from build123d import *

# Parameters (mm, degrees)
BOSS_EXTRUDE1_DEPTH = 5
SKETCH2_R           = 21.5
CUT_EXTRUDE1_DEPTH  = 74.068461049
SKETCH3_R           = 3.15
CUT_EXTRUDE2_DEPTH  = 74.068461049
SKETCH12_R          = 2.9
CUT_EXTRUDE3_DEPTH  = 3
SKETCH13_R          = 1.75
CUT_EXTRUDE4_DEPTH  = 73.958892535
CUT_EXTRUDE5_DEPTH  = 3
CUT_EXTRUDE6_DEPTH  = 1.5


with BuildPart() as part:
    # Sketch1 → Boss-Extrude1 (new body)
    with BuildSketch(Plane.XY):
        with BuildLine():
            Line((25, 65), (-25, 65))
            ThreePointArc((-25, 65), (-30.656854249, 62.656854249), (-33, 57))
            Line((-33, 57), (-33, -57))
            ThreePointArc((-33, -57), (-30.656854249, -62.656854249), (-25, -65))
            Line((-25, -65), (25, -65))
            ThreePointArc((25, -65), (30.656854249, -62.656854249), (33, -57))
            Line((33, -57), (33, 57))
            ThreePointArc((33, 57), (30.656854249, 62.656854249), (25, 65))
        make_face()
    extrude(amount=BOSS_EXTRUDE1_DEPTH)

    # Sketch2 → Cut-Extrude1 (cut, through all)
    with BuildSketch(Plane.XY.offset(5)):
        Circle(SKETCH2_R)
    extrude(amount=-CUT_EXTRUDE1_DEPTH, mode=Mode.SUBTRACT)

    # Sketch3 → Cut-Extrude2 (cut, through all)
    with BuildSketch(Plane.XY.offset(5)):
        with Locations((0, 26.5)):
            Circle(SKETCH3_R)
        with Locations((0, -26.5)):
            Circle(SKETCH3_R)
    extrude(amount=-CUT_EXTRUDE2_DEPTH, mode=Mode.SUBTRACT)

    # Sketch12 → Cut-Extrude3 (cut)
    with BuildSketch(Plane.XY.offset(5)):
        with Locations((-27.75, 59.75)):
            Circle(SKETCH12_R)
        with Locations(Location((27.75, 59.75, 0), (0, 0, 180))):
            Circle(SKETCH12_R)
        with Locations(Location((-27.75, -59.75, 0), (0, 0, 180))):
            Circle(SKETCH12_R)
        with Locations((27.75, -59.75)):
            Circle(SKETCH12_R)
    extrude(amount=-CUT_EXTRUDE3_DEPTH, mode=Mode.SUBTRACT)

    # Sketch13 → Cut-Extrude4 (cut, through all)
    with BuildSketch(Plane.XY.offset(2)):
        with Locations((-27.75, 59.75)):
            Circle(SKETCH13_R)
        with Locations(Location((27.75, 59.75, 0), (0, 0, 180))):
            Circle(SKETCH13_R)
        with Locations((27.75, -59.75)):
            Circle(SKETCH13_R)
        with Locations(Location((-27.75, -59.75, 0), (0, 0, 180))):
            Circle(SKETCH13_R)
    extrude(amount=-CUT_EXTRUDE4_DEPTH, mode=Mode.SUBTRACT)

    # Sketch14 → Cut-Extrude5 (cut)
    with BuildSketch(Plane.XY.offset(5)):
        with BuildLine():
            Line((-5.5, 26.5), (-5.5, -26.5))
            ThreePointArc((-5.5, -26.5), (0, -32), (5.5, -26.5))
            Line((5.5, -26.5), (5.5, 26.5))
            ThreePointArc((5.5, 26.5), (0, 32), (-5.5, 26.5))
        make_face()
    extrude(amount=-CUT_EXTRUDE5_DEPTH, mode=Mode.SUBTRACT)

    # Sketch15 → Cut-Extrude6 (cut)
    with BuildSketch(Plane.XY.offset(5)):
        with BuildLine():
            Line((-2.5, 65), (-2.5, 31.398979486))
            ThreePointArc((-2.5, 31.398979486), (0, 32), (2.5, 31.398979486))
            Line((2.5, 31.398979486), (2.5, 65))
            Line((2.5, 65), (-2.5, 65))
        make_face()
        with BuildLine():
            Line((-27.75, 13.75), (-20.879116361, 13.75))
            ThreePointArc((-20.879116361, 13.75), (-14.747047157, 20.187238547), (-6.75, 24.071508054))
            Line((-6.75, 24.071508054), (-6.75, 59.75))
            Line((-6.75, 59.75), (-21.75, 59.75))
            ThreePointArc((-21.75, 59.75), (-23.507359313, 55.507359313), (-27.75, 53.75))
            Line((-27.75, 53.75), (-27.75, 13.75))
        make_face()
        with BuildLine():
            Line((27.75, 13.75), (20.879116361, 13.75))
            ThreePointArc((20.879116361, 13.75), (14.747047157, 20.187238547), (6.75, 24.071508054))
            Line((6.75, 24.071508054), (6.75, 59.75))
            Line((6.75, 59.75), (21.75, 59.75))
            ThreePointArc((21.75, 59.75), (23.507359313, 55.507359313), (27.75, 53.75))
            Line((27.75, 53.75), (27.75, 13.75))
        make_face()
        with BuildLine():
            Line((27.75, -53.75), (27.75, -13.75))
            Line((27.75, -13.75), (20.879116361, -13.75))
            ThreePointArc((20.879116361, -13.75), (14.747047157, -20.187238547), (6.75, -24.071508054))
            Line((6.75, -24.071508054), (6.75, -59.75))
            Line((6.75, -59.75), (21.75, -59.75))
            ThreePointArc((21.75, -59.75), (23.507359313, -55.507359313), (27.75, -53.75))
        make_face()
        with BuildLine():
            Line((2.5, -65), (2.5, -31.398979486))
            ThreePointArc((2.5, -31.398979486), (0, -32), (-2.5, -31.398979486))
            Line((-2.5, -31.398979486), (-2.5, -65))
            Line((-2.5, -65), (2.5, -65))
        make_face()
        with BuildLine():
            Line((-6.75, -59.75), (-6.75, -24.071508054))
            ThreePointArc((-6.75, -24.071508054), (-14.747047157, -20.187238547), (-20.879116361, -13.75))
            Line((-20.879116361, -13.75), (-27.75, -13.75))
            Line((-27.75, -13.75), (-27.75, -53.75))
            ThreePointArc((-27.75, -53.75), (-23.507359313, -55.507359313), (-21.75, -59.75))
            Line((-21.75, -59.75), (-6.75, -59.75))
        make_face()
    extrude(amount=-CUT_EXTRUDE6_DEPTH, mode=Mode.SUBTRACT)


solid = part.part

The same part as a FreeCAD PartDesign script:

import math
import FreeCAD as App
import Part
import Sketcher
from FreeCAD import Vector

doc = App.newDocument("Part")
body = doc.addObject("PartDesign::Body", "Body")

# Sketch on XY plane
sketch1 = body.newObject("Sketcher::SketchObject", "Sketch")
sketch1.AttachmentSupport = (doc.getObject("XY_Plane"), [""])
sketch1.MapMode = "FlatFace"
sketch1.addGeometry([
    Part.LineSegment(Vector(25, 65, 0), Vector(-25, 65, 0)),  # 0
    Part.ArcOfCircle(Part.Circle(Vector(-25, 57, 0), Vector(0, 0, 1), 8), math.radians(90), math.radians(180)),  # 1
    Part.LineSegment(Vector(-33, 57, 0), Vector(-33, -57, 0)),  # 2
    Part.ArcOfCircle(Part.Circle(Vector(-25, -57, 0), Vector(0, 0, 1), 8), math.radians(-180), math.radians(-90)),  # 3
    Part.LineSegment(Vector(-25, -65, 0), Vector(25, -65, 0)),  # 4
    Part.ArcOfCircle(Part.Circle(Vector(25, -57, 0), Vector(0, 0, 1), 8), math.radians(-90), math.radians(0)),  # 5
    Part.LineSegment(Vector(33, -57, 0), Vector(33, 57, 0)),  # 6
    Part.ArcOfCircle(Part.Circle(Vector(25, 57, 0), Vector(0, 0, 1), 8), math.radians(0), math.radians(90)),  # 7
], False)
sketch1.addConstraint([
    Sketcher.Constraint("Tangent", 0, 2, 1, 1),
    Sketcher.Constraint("Tangent", 1, 2, 2, 1),
    Sketcher.Constraint("Tangent", 2, 2, 3, 1),
    Sketcher.Constraint("Tangent", 3, 2, 4, 1),
    Sketcher.Constraint("Tangent", 4, 2, 5, 1),
    Sketcher.Constraint("Tangent", 5, 2, 6, 1),
    Sketcher.Constraint("Tangent", 6, 2, 7, 1),
    Sketcher.Constraint("Tangent", 7, 2, 0, 1),
    Sketcher.Constraint("Horizontal", 0),
    Sketcher.Constraint("Vertical", 2),
    Sketcher.Constraint("Horizontal", 4),
    Sketcher.Constraint("Vertical", 6),
    Sketcher.Constraint("Equal", 1, 3),
    Sketcher.Constraint("Equal", 3, 5),
    Sketcher.Constraint("Equal", 5, 7),
    Sketcher.Constraint("Symmetric", 1, 3, 5, 3, -1, 1),
    Sketcher.Constraint("Radius", 1, 8.0),
    Sketcher.Constraint("DistanceX", 0, 2, 0, 1, 50.0),
    Sketcher.Constraint("DistanceY", 2, 2, 2, 1, 114.0),
])
pad1 = body.newObject("PartDesign::Pad", "Pad")
pad1.Profile = sketch1
pad1.Length = 5

# Sketch on XY plane
sketch2 = body.newObject("Sketcher::SketchObject", "Sketch001")
sketch2.AttachmentSupport = (doc.getObject("XY_Plane"), [""])
sketch2.MapMode = "FlatFace"
sketch2.AttachmentOffset = App.Placement(Vector(0, 0, 5), App.Rotation())
sketch2.addGeometry(Part.Circle(Vector(0, 0, 0), Vector(0, 0, 1), 22), False)
sketch2.addConstraint([
    Sketcher.Constraint("Coincident", 0, 3, -1, 1),
    Sketcher.Constraint("Diameter", 0, 43.0),
])
pocket1 = body.newObject("PartDesign::Pocket", "Pocket")
pocket1.Profile = sketch2
pocket1.Type = "ThroughAll"

# Sketch on XY plane
sketch3 = body.newObject("Sketcher::SketchObject", "Sketch002")
sketch3.AttachmentSupport = (doc.getObject("XY_Plane"), [""])
sketch3.MapMode = "FlatFace"
sketch3.AttachmentOffset = App.Placement(Vector(0, 0, 5), App.Rotation())
sketch3.addGeometry([
    Part.Circle(Vector(0, 26.5, 0), Vector(0, 0, 1), 3.1),
    Part.Circle(Vector(0, -26.5, 0), Vector(0, 0, 1), 3.1),
], False)
sketch3.addConstraint([
    Sketcher.Constraint("Equal", 0, 1),
    Sketcher.Constraint("Symmetric", 0, 3, 1, 3, -1, 1),
    Sketcher.Constraint("PointOnObject", 0, 3, -2),
    Sketcher.Constraint("Diameter", 0, 6.3),
    Sketcher.Constraint("DistanceY", 1, 3, 0, 3, 53.0),
])
pocket2 = body.newObject("PartDesign::Pocket", "Pocket001")
pocket2.Profile = sketch3
pocket2.Type = "ThroughAll"

# Sketch on XY plane
sketch4 = body.newObject("Sketcher::SketchObject", "Sketch003")
sketch4.AttachmentSupport = (doc.getObject("XY_Plane"), [""])
sketch4.MapMode = "FlatFace"
sketch4.AttachmentOffset = App.Placement(Vector(0, 0, 5), App.Rotation())
sketch4.addGeometry([
    Part.Circle(Vector(-27.8, 59.8, 0), Vector(0, 0, 1), 2.9),
    Part.Circle(Vector(27.8, 59.8, 0), Vector(0, 0, 1), 2.9),
    Part.Circle(Vector(-27.8, -59.8, 0), Vector(0, 0, 1), 2.9),
    Part.Circle(Vector(27.8, -59.8, 0), Vector(0, 0, 1), 2.9),
], False)
sketch4.addConstraint([
    Sketcher.Constraint("Equal", 0, 1),
    Sketcher.Constraint("Equal", 1, 2),
    Sketcher.Constraint("Equal", 2, 3),
    Sketcher.Constraint("Symmetric", 1, 3, 2, 3, -1, 1),
    Sketcher.Constraint("Symmetric", 0, 3, 3, 3, -1, 1),
    Sketcher.Constraint("Symmetric", 0, 3, 1, 3, -2),
    Sketcher.Constraint("Diameter", 0, 5.8),
    Sketcher.Constraint("DistanceX", 0, 3, 1, 3, 55.5),
    Sketcher.Constraint("DistanceY", 2, 3, 0, 3, 119.5),
])
pocket3 = body.newObject("PartDesign::Pocket", "Pocket002")
pocket3.Profile = sketch4
pocket3.Length = 3

# Sketch on XY plane
sketch5 = body.newObject("Sketcher::SketchObject", "Sketch004")
sketch5.AttachmentSupport = (doc.getObject("XY_Plane"), [""])
sketch5.MapMode = "FlatFace"
sketch5.AttachmentOffset = App.Placement(Vector(0, 0, 2), App.Rotation())
sketch5.addGeometry([
    Part.Circle(Vector(-27.8, 59.8, 0), Vector(0, 0, 1), 1.8),
    Part.Circle(Vector(27.8, 59.8, 0), Vector(0, 0, 1), 1.8),
    Part.Circle(Vector(27.8, -59.8, 0), Vector(0, 0, 1), 1.8),
    Part.Circle(Vector(-27.8, -59.8, 0), Vector(0, 0, 1), 1.8),
], False)
sketch5.addConstraint([
    Sketcher.Constraint("Equal", 0, 1),
    Sketcher.Constraint("Equal", 1, 2),
    Sketcher.Constraint("Equal", 2, 3),
    Sketcher.Constraint("Symmetric", 0, 3, 2, 3, -1, 1),
    Sketcher.Constraint("Symmetric", 1, 3, 3, 3, -1, 1),
    Sketcher.Constraint("Symmetric", 0, 3, 1, 3, -2),
    Sketcher.Constraint("Diameter", 0, 3.5),
    Sketcher.Constraint("DistanceX", 0, 3, 1, 3, 55.5),
    Sketcher.Constraint("DistanceY", 2, 3, 1, 3, 119.5),
])
pocket4 = body.newObject("PartDesign::Pocket", "Pocket003")
pocket4.Profile = sketch5
pocket4.Type = "ThroughAll"

# Sketch on XY plane
sketch6 = body.newObject("Sketcher::SketchObject", "Sketch005")
sketch6.AttachmentSupport = (doc.getObject("XY_Plane"), [""])
sketch6.MapMode = "FlatFace"
sketch6.AttachmentOffset = App.Placement(Vector(0, 0, 5), App.Rotation())
sketch6.addGeometry([
    Part.LineSegment(Vector(-6, 26, 0), Vector(-6, -26, 0)),
    Part.ArcOfCircle(Part.Circle(Vector(0, -26, 0), Vector(0, 0, 1), 6), math.radians(180), math.radians(360)),
    Part.LineSegment(Vector(6, -26, 0), Vector(6, 26, 0)),
    Part.ArcOfCircle(Part.Circle(Vector(0, 26, 0), Vector(0, 0, 1), 6), math.radians(0), math.radians(180)),
], False)
sketch6.addConstraint([
    Sketcher.Constraint("Tangent", 0, 2, 1, 1),
    Sketcher.Constraint("Tangent", 1, 2, 2, 1),
    Sketcher.Constraint("Tangent", 2, 2, 3, 1),
    Sketcher.Constraint("Tangent", 3, 2, 0, 1),
    Sketcher.Constraint("Vertical", 0),
    Sketcher.Constraint("Vertical", 2),
    Sketcher.Constraint("Symmetric", 1, 3, 3, 3, -1, 1),
    Sketcher.Constraint("Radius", 1, 5.5),
    Sketcher.Constraint("DistanceY", 0, 2, 0, 1, 53.0),
])
pocket5 = body.newObject("PartDesign::Pocket", "Pocket004")
pocket5.Profile = sketch6
pocket5.Length = 3

# Sketch on XY plane
sketch7 = body.newObject("Sketcher::SketchObject", "Sketch006")
sketch7.AttachmentSupport = (doc.getObject("XY_Plane"), [""])
sketch7.MapMode = "FlatFace"
sketch7.AttachmentOffset = App.Placement(Vector(0, 0, 5), App.Rotation())
sketch7.addGeometry([
    Part.LineSegment(Vector(-2, 65, 0), Vector(-2, 31, 0)),  # 0
    Part.ArcOfCircle(Part.Circle(Vector(0, 26, 0), Vector(0, 0, 1), 6), math.radians(63), math.radians(117)),  # 1
    Part.LineSegment(Vector(2, 31, 0), Vector(2, 65, 0)),  # 2
    Part.LineSegment(Vector(2, 65, 0), Vector(-2, 65, 0)),  # 3
    Part.LineSegment(Vector(-28, 14, 0), Vector(-21, 14, 0)),  # 4
    Part.ArcOfCircle(Part.Circle(Vector(0, 0, 0), Vector(0, 0, 1), 25), math.radians(106), math.radians(147)),  # 5
    Part.LineSegment(Vector(-7, 24, 0), Vector(-7, 60, 0)),  # 6
    Part.LineSegment(Vector(-7, 60, 0), Vector(-22, 60, 0)),  # 7
    Part.ArcOfCircle(Part.Circle(Vector(-28, 60, 0), Vector(0, 0, 1), 6), math.radians(-90), math.radians(0)),  # 8
    Part.LineSegment(Vector(-28, 54, 0), Vector(-28, 14, 0)),  # 9
    Part.LineSegment(Vector(21, 14, 0), Vector(28, 14, 0)),  # 10
    Part.LineSegment(Vector(28, 14, 0), Vector(28, 54, 0)),  # 11
    Part.ArcOfCircle(Part.Circle(Vector(28, 60, 0), Vector(0, 0, 1), 6), math.radians(180), math.radians(270)),  # 12
    Part.LineSegment(Vector(22, 60, 0), Vector(7, 60, 0)),  # 13
    Part.LineSegment(Vector(7, 60, 0), Vector(7, 24, 0)),  # 14
    Part.ArcOfCircle(Part.Circle(Vector(0, 0, 0), Vector(0, 0, 1), 25), math.radians(33), math.radians(74)),  # 15
    Part.LineSegment(Vector(28, -54, 0), Vector(28, -14, 0)),  # 16
    Part.LineSegment(Vector(28, -14, 0), Vector(21, -14, 0)),  # 17
    Part.ArcOfCircle(Part.Circle(Vector(0, 0, 0), Vector(0, 0, 1), 25), math.radians(-74), math.radians(-33)),  # 18
    Part.LineSegment(Vector(7, -24, 0), Vector(7, -60, 0)),  # 19
    Part.LineSegment(Vector(7, -60, 0), Vector(22, -60, 0)),  # 20
    Part.ArcOfCircle(Part.Circle(Vector(28, -60, 0), Vector(0, 0, 1), 6), math.radians(90), math.radians(180)),  # 21
    Part.LineSegment(Vector(2, -65, 0), Vector(2, -31, 0)),  # 22
    Part.ArcOfCircle(Part.Circle(Vector(0, -26, 0), Vector(0, 0, 1), 6), math.radians(-117), math.radians(-63)),  # 23
    Part.LineSegment(Vector(-2, -31, 0), Vector(-2, -65, 0)),  # 24
    Part.LineSegment(Vector(-2, -65, 0), Vector(2, -65, 0)),  # 25
    Part.LineSegment(Vector(-7, -60, 0), Vector(-7, -24, 0)),  # 26
    Part.ArcOfCircle(Part.Circle(Vector(0, 0, 0), Vector(0, 0, 1), 25), math.radians(-147), math.radians(-106)),  # 27
    Part.LineSegment(Vector(-21, -14, 0), Vector(-28, -14, 0)),  # 28
    Part.LineSegment(Vector(-28, -14, 0), Vector(-28, -54, 0)),  # 29
    Part.ArcOfCircle(Part.Circle(Vector(-28, -60, 0), Vector(0, 0, 1), 6), math.radians(0), math.radians(90)),  # 30
    Part.LineSegment(Vector(-22, -60, 0), Vector(-7, -60, 0)),  # 31
], False)
sketch7.addConstraint([
    Sketcher.Constraint("Coincident", 0, 2, 1, 2),
    Sketcher.Constraint("Coincident", 1, 1, 2, 1),
    Sketcher.Constraint("Coincident", 2, 2, 3, 1),
    Sketcher.Constraint("Coincident", 3, 2, 0, 1),
    Sketcher.Constraint("Coincident", 4, 2, 5, 2),
    Sketcher.Constraint("Coincident", 5, 1, 6, 1),
    Sketcher.Constraint("Coincident", 6, 2, 7, 1),
    Sketcher.Constraint("Coincident", 7, 2, 8, 2),
    Sketcher.Constraint("Coincident", 8, 1, 9, 1),
    Sketcher.Constraint("Coincident", 9, 2, 4, 1),
    Sketcher.Constraint("Coincident", 10, 2, 11, 1),
    Sketcher.Constraint("Coincident", 11, 2, 12, 2),
    Sketcher.Constraint("Coincident", 12, 1, 13, 1),
    Sketcher.Constraint("Coincident", 13, 2, 14, 1),
    Sketcher.Constraint("Coincident", 14, 2, 15, 2),
    Sketcher.Constraint("Coincident", 15, 1, 10, 1),
    Sketcher.Constraint("Coincident", 16, 2, 17, 1),
    Sketcher.Constraint("Coincident", 17, 2, 18, 2),
    Sketcher.Constraint("Coincident", 18, 1, 19, 1),
    Sketcher.Constraint("Coincident", 19, 2, 20, 1),
    Sketcher.Constraint("Coincident", 20, 2, 21, 2),
    Sketcher.Constraint("Coincident", 21, 1, 16, 1),
    Sketcher.Constraint("Coincident", 22, 2, 23, 2),
    Sketcher.Constraint("Coincident", 23, 1, 24, 1),
    Sketcher.Constraint("Coincident", 24, 2, 25, 1),
    Sketcher.Constraint("Coincident", 25, 2, 22, 1),
    Sketcher.Constraint("Coincident", 26, 2, 27, 2),
    Sketcher.Constraint("Coincident", 27, 1, 28, 1),
    Sketcher.Constraint("Coincident", 28, 2, 29, 1),
    Sketcher.Constraint("Coincident", 29, 2, 30, 2),
    Sketcher.Constraint("Coincident", 30, 1, 31, 1),
    Sketcher.Constraint("Coincident", 31, 2, 26, 1),
    Sketcher.Constraint("Vertical", 0),
    Sketcher.Constraint("Vertical", 2),
    Sketcher.Constraint("Horizontal", 3),
    Sketcher.Constraint("Horizontal", 4),
    Sketcher.Constraint("Vertical", 6),
    Sketcher.Constraint("Horizontal", 7),
    Sketcher.Constraint("Vertical", 9),
    Sketcher.Constraint("Horizontal", 10),
    Sketcher.Constraint("Vertical", 11),
    Sketcher.Constraint("Horizontal", 13),
    Sketcher.Constraint("Vertical", 14),
    Sketcher.Constraint("Vertical", 16),
    Sketcher.Constraint("Horizontal", 17),
    Sketcher.Constraint("Vertical", 19),
    Sketcher.Constraint("Horizontal", 20),
    Sketcher.Constraint("Vertical", 22),
    Sketcher.Constraint("Vertical", 24),
    Sketcher.Constraint("Horizontal", 25),
    Sketcher.Constraint("Vertical", 26),
    Sketcher.Constraint("Horizontal", 28),
    Sketcher.Constraint("Vertical", 29),
    Sketcher.Constraint("Horizontal", 31),
    Sketcher.Constraint("Coincident", 5, 3, -1, 1),
    Sketcher.Constraint("Coincident", 15, 3, -1, 1),
    Sketcher.Constraint("Coincident", 18, 3, -1, 1),
    Sketcher.Constraint("Coincident", 27, 3, -1, 1),
    Sketcher.Constraint("Equal", 8, 12),
    Sketcher.Constraint("Equal", 5, 15),
    Sketcher.Constraint("Equal", 15, 18),
    Sketcher.Constraint("Equal", 12, 21),
    Sketcher.Constraint("Equal", 1, 23),
    Sketcher.Constraint("Equal", 18, 27),
    Sketcher.Constraint("Equal", 21, 30),
    Sketcher.Constraint("Symmetric", 8, 3, 21, 3, -1, 1),
    Sketcher.Constraint("Symmetric", 1, 3, 23, 3, -1, 1),
    Sketcher.Constraint("Symmetric", 12, 3, 30, 3, -1, 1),
    Sketcher.Constraint("Symmetric", 9, 2, 16, 2, -1, 1),
    Sketcher.Constraint("Symmetric", 6, 2, 19, 2, -1, 1),
    Sketcher.Constraint("Symmetric", 2, 2, 24, 2, -1, 1),
    Sketcher.Constraint("Symmetric", 10, 2, 28, 2, -1, 1),
    Sketcher.Constraint("Symmetric", 13, 2, 31, 2, -1, 1),
    Sketcher.Constraint("Symmetric", 8, 3, 12, 3, -2),
    Sketcher.Constraint("Symmetric", 0, 2, 1, 1, -2),
    Sketcher.Constraint("Symmetric", 9, 2, 10, 2, -2),
    Sketcher.Constraint("Symmetric", 6, 2, 13, 2, -2),
    Sketcher.Constraint("Horizontal", 12, 3, 6, 2),
    Sketcher.Constraint("Horizontal", 22, 2, 23, 1),
    Sketcher.Constraint("Vertical", 30, 3, 8, 1),
    Sketcher.Constraint("Radius", 5, 25.0),
    Sketcher.Constraint("Radius", 8, 6.0),
    Sketcher.Constraint("Radius", 1, 5.5),
    Sketcher.Constraint("DistanceX", 3, 2, 3, 1, 5.0),
    Sketcher.Constraint("DistanceX", 7, 2, 7, 1, 15.0),
    Sketcher.Constraint("DistanceY", 9, 2, 9, 1, 40.0),
    Sketcher.Constraint("DistanceY", -1, 1, 2, 2, 65.0),
    Sketcher.Constraint("DistanceY", 23, 3, 1, 3, 53.0),
    Sketcher.Constraint("DistanceX", 8, 3, 12, 3, 55.5),
    Sketcher.Constraint("DistanceY", 21, 3, 12, 3, 119.5),
])
pocket6 = body.newObject("PartDesign::Pocket", "Pocket005")
pocket6.Profile = sketch7
pocket6.Length = 1.5

doc.recompute()
